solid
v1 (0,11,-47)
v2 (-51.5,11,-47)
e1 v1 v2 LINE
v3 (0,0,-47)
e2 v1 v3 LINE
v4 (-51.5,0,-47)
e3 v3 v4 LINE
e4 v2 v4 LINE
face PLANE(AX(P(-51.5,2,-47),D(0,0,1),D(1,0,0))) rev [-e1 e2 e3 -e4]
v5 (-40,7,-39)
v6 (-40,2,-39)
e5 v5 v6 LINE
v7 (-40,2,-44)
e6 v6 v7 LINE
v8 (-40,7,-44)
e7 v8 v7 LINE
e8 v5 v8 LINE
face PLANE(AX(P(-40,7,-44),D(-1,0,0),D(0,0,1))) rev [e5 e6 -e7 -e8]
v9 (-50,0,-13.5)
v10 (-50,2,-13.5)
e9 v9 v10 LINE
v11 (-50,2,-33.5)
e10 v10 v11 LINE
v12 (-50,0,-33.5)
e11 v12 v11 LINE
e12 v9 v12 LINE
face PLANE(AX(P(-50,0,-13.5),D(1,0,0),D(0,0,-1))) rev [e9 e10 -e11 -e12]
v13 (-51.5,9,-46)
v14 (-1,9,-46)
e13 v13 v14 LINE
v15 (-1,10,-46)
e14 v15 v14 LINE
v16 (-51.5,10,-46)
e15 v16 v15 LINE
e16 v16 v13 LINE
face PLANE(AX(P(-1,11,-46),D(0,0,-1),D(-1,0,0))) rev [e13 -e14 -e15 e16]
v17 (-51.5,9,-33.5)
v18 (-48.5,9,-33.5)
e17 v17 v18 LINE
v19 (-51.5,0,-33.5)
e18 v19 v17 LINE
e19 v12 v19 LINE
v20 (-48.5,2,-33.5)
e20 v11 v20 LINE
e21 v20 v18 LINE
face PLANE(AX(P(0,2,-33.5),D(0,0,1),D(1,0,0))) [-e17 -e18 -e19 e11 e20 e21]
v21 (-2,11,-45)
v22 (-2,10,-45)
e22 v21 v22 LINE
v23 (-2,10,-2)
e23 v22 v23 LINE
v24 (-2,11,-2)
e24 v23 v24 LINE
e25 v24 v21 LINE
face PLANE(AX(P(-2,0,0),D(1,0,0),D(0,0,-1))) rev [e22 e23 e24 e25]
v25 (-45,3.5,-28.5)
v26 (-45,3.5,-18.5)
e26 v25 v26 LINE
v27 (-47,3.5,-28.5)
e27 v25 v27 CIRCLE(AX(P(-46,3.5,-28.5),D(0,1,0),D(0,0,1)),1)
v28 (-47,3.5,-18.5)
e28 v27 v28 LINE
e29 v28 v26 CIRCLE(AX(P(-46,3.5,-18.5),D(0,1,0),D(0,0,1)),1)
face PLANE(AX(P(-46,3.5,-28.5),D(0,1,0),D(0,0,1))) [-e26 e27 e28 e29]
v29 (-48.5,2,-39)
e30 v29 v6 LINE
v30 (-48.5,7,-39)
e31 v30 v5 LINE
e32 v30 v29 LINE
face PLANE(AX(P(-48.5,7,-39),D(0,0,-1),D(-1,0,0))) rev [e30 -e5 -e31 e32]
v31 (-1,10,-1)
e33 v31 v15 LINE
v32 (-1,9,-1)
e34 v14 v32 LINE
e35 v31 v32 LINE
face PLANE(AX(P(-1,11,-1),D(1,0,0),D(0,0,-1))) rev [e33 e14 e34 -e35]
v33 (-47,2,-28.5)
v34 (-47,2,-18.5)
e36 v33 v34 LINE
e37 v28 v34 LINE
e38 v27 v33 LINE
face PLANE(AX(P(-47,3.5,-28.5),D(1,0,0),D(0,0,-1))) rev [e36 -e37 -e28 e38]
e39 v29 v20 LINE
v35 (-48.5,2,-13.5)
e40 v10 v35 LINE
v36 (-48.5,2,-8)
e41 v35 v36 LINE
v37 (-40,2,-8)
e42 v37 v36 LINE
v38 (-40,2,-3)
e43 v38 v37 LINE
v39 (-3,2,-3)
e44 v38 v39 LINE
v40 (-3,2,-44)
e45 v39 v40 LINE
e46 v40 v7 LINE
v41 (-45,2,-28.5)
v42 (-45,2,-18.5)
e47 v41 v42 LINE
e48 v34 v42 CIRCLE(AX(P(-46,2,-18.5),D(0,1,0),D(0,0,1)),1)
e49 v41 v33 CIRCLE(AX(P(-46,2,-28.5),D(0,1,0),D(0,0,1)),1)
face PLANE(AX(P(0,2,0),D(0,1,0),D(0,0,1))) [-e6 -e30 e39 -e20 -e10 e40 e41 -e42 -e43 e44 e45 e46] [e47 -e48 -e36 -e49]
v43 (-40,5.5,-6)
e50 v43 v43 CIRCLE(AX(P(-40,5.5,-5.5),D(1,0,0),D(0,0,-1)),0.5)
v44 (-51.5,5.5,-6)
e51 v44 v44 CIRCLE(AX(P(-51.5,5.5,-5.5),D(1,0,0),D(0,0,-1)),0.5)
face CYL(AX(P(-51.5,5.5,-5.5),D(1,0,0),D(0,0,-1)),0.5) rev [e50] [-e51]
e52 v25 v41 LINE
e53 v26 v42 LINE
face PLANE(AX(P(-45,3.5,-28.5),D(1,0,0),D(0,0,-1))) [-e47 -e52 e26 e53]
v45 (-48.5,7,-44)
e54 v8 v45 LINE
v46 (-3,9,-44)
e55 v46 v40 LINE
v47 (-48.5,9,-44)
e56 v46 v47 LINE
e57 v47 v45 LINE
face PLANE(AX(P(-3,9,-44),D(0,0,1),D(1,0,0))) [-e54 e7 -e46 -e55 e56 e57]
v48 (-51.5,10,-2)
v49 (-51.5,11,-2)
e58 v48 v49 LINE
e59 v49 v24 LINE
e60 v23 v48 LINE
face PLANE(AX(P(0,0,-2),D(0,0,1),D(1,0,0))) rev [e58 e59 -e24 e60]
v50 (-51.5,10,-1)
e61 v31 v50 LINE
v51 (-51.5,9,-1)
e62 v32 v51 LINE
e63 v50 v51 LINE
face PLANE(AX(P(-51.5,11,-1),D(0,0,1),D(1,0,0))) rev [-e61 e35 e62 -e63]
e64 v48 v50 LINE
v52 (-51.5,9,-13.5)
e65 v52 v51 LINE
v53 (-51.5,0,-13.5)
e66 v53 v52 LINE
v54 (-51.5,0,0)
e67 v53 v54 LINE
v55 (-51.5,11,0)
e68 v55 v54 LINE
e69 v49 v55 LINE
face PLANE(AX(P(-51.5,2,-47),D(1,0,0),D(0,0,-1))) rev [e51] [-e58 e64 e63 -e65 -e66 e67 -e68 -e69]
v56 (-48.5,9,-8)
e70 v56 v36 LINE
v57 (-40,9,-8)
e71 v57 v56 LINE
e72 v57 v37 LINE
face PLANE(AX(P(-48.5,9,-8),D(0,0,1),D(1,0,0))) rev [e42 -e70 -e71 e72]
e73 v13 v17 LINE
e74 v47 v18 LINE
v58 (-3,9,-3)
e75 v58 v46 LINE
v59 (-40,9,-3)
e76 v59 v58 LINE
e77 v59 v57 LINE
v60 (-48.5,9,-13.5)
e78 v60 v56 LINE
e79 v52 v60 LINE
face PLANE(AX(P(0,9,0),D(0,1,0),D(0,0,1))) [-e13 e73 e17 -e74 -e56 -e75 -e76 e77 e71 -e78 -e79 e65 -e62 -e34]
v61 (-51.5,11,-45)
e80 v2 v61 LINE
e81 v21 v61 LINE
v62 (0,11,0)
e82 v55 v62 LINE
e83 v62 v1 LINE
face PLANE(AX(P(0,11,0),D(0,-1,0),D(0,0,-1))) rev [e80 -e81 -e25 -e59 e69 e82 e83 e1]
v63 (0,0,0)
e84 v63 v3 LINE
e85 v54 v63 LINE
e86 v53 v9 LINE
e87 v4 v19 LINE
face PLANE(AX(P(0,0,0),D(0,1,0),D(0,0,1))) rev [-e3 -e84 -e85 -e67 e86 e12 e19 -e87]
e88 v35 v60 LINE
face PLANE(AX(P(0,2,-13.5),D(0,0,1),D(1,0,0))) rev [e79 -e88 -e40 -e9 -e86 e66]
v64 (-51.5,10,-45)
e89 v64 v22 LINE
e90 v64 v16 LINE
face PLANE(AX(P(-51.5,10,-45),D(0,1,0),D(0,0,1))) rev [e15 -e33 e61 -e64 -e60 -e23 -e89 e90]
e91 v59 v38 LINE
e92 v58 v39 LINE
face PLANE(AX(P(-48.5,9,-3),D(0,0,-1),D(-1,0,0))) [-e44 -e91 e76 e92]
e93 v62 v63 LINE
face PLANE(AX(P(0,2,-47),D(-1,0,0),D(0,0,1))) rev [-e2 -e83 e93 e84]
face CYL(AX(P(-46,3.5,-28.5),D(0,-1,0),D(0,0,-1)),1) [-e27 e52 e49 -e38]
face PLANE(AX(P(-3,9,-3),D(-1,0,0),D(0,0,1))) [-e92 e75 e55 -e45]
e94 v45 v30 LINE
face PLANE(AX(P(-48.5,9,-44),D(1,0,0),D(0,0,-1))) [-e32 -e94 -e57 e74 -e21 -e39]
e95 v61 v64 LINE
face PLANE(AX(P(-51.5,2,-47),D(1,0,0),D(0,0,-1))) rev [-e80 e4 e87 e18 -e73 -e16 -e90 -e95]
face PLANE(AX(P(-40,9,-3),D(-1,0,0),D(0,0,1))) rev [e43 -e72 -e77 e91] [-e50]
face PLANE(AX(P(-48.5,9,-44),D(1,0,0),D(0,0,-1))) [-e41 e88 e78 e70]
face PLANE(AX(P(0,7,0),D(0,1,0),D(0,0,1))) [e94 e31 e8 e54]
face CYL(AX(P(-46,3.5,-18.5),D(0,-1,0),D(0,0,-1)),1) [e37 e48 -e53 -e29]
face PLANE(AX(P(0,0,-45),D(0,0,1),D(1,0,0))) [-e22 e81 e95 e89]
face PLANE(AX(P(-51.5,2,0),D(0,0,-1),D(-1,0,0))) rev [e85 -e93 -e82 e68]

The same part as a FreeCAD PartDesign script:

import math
import FreeCAD as App
import Part
import Sketcher
Q = App.Units.Quantity


def add_polygon(sketch, points):
    """Adds a closed chain of lines whose ends are joined by coincident constraints."""
    first, n = sketch.GeometryCount, len(points)
    for a, b in zip(points, points[1:] + points[:1]):
        sketch.addGeometry(Part.LineSegment(App.Vector(*a, 0), App.Vector(*b, 0)), False)
    for i in range(n):
        sketch.addConstraint(Sketcher.Constraint("Coincident", first + i, 2, first + (i + 1) % n, 1))

doc = App.newDocument("Part")
body = doc.addObject("PartDesign::Body", "Body")

sketch1 = body.newObject("Sketcher::SketchObject", "Sketch")
sketch1.AttachmentSupport = (doc.getObject("XZ_Plane"), [""])
sketch1.MapMode = "FlatFace"
add_polygon(sketch1, [(-51.5, -47), (-51.5, 0), (0, 0), (0, -47)])
sketch1.addConstraint([
    Sketcher.Constraint("Vertical", 0),
    Sketcher.Constraint("Horizontal", 1),
    Sketcher.Constraint("Vertical", 2),
    Sketcher.Constraint("Horizontal", 3),
    Sketcher.Constraint("Coincident", 1, 2, -1, 1),
    Sketcher.Constraint("DistanceY", 0, 1, 0, 2, Q("47 mm")),
    Sketcher.Constraint("DistanceX", 1, 1, 1, 2, Q("51.5 mm")),
])
pad1 = body.newObject("PartDesign::Pad", "Pad")
pad1.Profile = sketch1
pad1.Length = 2
pad1.Reversed = True

sketch2 = body.newObject("Sketcher::SketchObject", "Sketch001")
sketch2.AttachmentSupport = (doc.getObject("XZ_Plane"), [""])
sketch2.MapMode = "FlatFace"
sketch2.AttachmentOffset = App.Placement(App.Vector(0, 0, -2), App.Rotation())
sketch2.addGeometry([
    Part.LineSegment(App.Vector(-45, -18.5, 0), App.Vector(-45, -28.5, 0)),
    Part.ArcOfCircle(Part.Circle(App.Vector(-46, -28.5, 0), App.Vector(0, 0, 1), 1), math.radians(180), math.radians(360)),
    Part.LineSegment(App.Vector(-47, -28.5, 0), App.Vector(-47, -18.5, 0)),
    Part.ArcOfCircle(Part.Circle(App.Vector(-46, -18.5, 0), App.Vector(0, 0, 1), 1), math.radians(0), math.radians(180)),
], False)
sketch2.addConstraint([
    Sketcher.Constraint("Tangent", 0, 2, 1, 2),
    Sketcher.Constraint("Tangent", 1, 1, 2, 1),
    Sketcher.Constraint("Tangent", 2, 2, 3, 2),
    Sketcher.Constraint("Tangent", 3, 1, 0, 1),
    Sketcher.Constraint("Vertical", 0),
    Sketcher.Constraint("Vertical", 2),
    Sketcher.Constraint("Radius", 1, Q("1 mm")),
    Sketcher.Constraint("DistanceY", 0, 2, 0, 1, Q("10 mm")),
    Sketcher.Constraint("DistanceX", 1, 3, -1, 1, Q("46 mm")),
    Sketcher.Constraint("DistanceY", 1, 3, -1, 1, Q("28.5 mm")),
])
pad2 = body.newObject("PartDesign::Pad", "Pad001")
pad2.Profile = sketch2
pad2.Length = 1.5
pad2.Reversed = True

sketch3 = body.newObject("Sketcher::SketchObject", "Sketch002")
sketch3.AttachmentSupport = (doc.getObject("XZ_Plane"), [""])
sketch3.MapMode = "FlatFace"
sketch3.AttachmentOffset = App.Placement(App.Vector(0, 0, -2), App.Rotation())
add_polygon(sketch3, [(-51.5, -47), (-51.5, 0), (0, 0), (0, -47)])
add_polygon(sketch3, [(-3, -3), (-48.5, -3), (-48.5, -44), (-3, -44)])
sketch3.addConstraint([
    Sketcher.Constraint("Vertical", 0),
    Sketcher.Constraint("Horizontal", 1),
    Sketcher.Constraint("Vertical", 2),
    Sketcher.Constraint("Horizontal", 3),
    Sketcher.Constraint("Horizontal", 4),
    Sketcher.Constraint("Vertical", 5),
    Sketcher.Constraint("Horizontal", 6),
    Sketcher.Constraint("Vertical", 7),
    Sketcher.Constraint("Coincident", 1, 2, -1, 1),
    Sketcher.Constraint("DistanceY", 0, 1, 0, 2, Q("47 mm")),
    Sketcher.Constraint("DistanceY", 5, 2, 5, 1, Q("41 mm")),
    Sketcher.Constraint("DistanceX", 1, 1, 1, 2, Q("51.5 mm")),
    Sketcher.Constraint("DistanceX", 4, 2, 4, 1, Q("45.5 mm")),
    Sketcher.Constraint("DistanceY", 4, 2, -1, 1, Q("3 mm")),
    Sketcher.Constraint("DistanceX", 6, 2, -1, 1, Q("3 mm")),
])
pad3 = body.newObject("PartDesign::Pad", "Pad002")
pad3.Profile = sketch3
pad3.Length = 7
pad3.Reversed = True

sketch4 = body.newObject("Sketcher::SketchObject", "Sketch003")
sketch4.AttachmentSupport = (doc.getObject("XZ_Plane"), [""])
sketch4.MapMode = "FlatFace"
sketch4.AttachmentOffset = App.Placement(App.Vector(0, 0, -9), App.Rotation())
add_polygon(sketch4, [(-51.5, -33.5), (-51.5, -13.5), (-48.5, -13.5), (-48.5, -33.5)])
sketch4.addConstraint([
    Sketcher.Constraint("Vertical", 0),
    Sketcher.Constraint("Horizontal", 1),
    Sketcher.Constraint("Vertical", 2),
    Sketcher.Constraint("Horizontal", 3),
    Sketcher.Constraint("DistanceX", 1, 1, 1, 2, Q("3 mm")),
    Sketcher.Constraint("DistanceY", 0, 1, 0, 2, Q("20 mm")),
    Sketcher.Constraint("DistanceX", 0, 2, -1, 1, Q("51.5 mm")),
    Sketcher.Constraint("DistanceY", 0, 2, -1, 1, Q("13.5 mm")),
])
pocket1 = body.newObject("PartDesign::Pocket", "Pocket")
pocket1.Profile = sketch4
pocket1.Length = 7
pocket1.Reversed = True

sketch5 = body.newObject("Sketcher::SketchObject", "Sketch004")
sketch5.AttachmentSupport = (doc.getObject("XZ_Plane"), [""])
sketch5.MapMode = "FlatFace"
sketch5.AttachmentOffset = App.Placement(App.Vector(0, 0, -2), App.Rotation())
add_polygon(sketch5, [(-48.5, -8), (-48.5, -3), (-40, -3), (-40, -8)])
sketch5.addConstraint([
    Sketcher.Constraint("Vertical", 0),
    Sketcher.Constraint("Horizontal", 1),
    Sketcher.Constraint("Vertical", 2),
    Sketcher.Constraint("Horizontal", 3),
    Sketcher.Constraint("DistanceY", 0, 1, 0, 2, Q("5 mm")),
    Sketcher.Constraint("DistanceX", 1, 1, 1, 2, Q("8.5 mm")),
    Sketcher.Constraint("DistanceY", 0, 2, -1, 1, Q("3 mm")),
    Sketcher.Constraint("DistanceX", 1, 2, -1, 1, Q("40 mm")),
])
pad4 = body.newObject("PartDesign::Pad", "Pad003")
pad4.Profile = sketch5
pad4.Length = 7
pad4.Reversed = True

sketch6 = body.newObject("Sketcher::SketchObject", "Sketch005")
sketch6.AttachmentSupport = (doc.getObject("YZ_Plane"), [""])
sketch6.MapMode = "FlatFace"
sketch6.AttachmentOffset = App.Placement(App.Vector(0, 0, -40), App.Rotation())
sketch6.addGeometry(Part.Circle(App.Vector(5.5, -5.5, 0), App.Vector(0, 0, 1), 0.5), False)
sketch6.addConstraint([
    Sketcher.Constraint("Diameter", 0, Q("1 mm")),
    Sketcher.Constraint("DistanceX", -1, 1, 0, 3, Q("5.5 mm")),
    Sketcher.Constraint("DistanceY", 0, 3, -1, 1, Q("5.5 mm")),
])
pocket2 = body.newObject("PartDesign::Pocket", "Pocket001")
pocket2.Profile = sketch6
pocket2.Type = "ThroughAll"

sketch7 = body.newObject("Sketcher::SketchObject", "Sketch006")
sketch7.AttachmentSupport = (doc.getObject("XZ_Plane"), [""])
sketch7.MapMode = "FlatFace"
sketch7.AttachmentOffset = App.Placement(App.Vector(0, 0, -2), App.Rotation())
add_polygon(sketch7, [(-48.5, -44), (-48.5, -39), (-40, -39), (-40, -44)])
sketch7.addConstraint([
    Sketcher.Constraint("Vertical", 0),
    Sketcher.Constraint("Horizontal", 1),
    Sketcher.Constraint("Vertical", 2),
    Sketcher.Constraint("Horizontal", 3),
    Sketcher.Constraint("DistanceY", 0, 1, 0, 2, Q("5 mm")),
    Sketcher.Constraint("DistanceX", 1, 1, 1, 2, Q("8.5 mm")),
    Sketcher.Constraint("DistanceY", 0, 2, -1, 1, Q("39 mm")),
    Sketcher.Constraint("DistanceX", 1, 2, -1, 1, Q("40 mm")),
])
pad5 = body.newObject("PartDesign::Pad", "Pad004")
pad5.Profile = sketch7
pad5.Length = 5
pad5.Reversed = True

sketch8 = body.newObject("Sketcher::SketchObject", "Sketch007")
sketch8.AttachmentSupport = (doc.getObject("XZ_Plane"), [""])
sketch8.MapMode = "FlatFace"
sketch8.AttachmentOffset = App.Placement(App.Vector(0, 0, -9), App.Rotation())
add_polygon(sketch8, [(-1, -1), (-51.5, -1), (-51.5, 0), (0, 0), (0, -47), (-51.5, -47), (-51.5, -46), (-1, -46)])
sketch8.addConstraint([
    Sketcher.Constraint("Horizontal", 0),
    Sketcher.Constraint("Vertical", 1),
    Sketcher.Constraint("Horizontal", 2),
    Sketcher.Constraint("Vertical", 3),
    Sketcher.Constraint("Horizontal", 4),
    Sketcher.Constraint("Vertical", 5),
    Sketcher.Constraint("Horizontal", 6),
    Sketcher.Constraint("Vertical", 7),
    Sketcher.Constraint("Coincident", 2, 2, -1, 1),
    Sketcher.Constraint("Vertical", 1, 2, 4, 2),
    Sketcher.Constraint("Equal", 1, 5),
    Sketcher.Constraint("DistanceY", 1, 1, 1, 2, Q("1 mm")),
    Sketcher.Constraint("DistanceY", 3, 2, 3, 1, Q("47 mm")),
    Sketcher.Constraint("DistanceX", 0, 2, 0, 1, Q("50.5 mm")),
    Sketcher.Constraint("DistanceX", 2, 1, 2, 2, Q("51.5 mm")),
])
pad6 = body.newObject("PartDesign::Pad", "Pad005")
pad6.Profile = sketch8
pad6.Length = 2
pad6.Reversed = True

sketch9 = body.newObject("Sketcher::SketchObject", "Sketch008")
sketch9.AttachmentSupport = (doc.getObject("XY_Plane"), [""])
sketch9.MapMode = "FlatFace"
sketch9.AttachmentOffset = App.Placement(App.Vector(0, 0, -46), App.Rotation())
add_polygon(sketch9, [(-51.5, 11), (-51.5, 10), (-1, 10), (-1, 11)])
sketch9.addConstraint([
    Sketcher.Constraint("Vertical", 0),
    Sketcher.Constraint("Horizontal", 1),
    Sketcher.Constraint("Vertical", 2),
    Sketcher.Constraint("Horizontal", 3),
    Sketcher.Constraint("DistanceY", 0, 2, 0, 1, Q("1 mm")),
    Sketcher.Constraint("DistanceX", 1, 1, 1, 2, Q("50.5 mm")),
    Sketcher.Constraint("DistanceY", -1, 1, 0, 2, Q("10 mm")),
    Sketcher.Constraint("DistanceX", 1, 2, -1, 1, Q("1 mm")),
])
pad7 = body.newObject("PartDesign::Pad", "Pad006")
pad7.Profile = sketch9
pad7.Length = 1

sketch10 = body.newObject("Sketcher::SketchObject", "Sketch009")
sketch10.AttachmentSupport = (doc.getObject("XY_Plane"), [""])
sketch10.MapMode = "FlatFace"
sketch10.AttachmentOffset = App.Placement(App.Vector(0, 0, -1), App.Rotation())
add_polygon(sketch10, [(-1, 11), (-1, 10), (-51.5, 10), (-51.5, 11)])
sketch10.addConstraint([
    Sketcher.Constraint("Vertical", 0),
    Sketcher.Constraint("Horizontal", 1),
    Sketcher.Constraint("Vertical", 2),
    Sketcher.Constraint("Horizontal", 3),
    Sketcher.Constraint("DistanceY", 0, 2, 0, 1, Q("1 mm")),
    Sketcher.Constraint("DistanceX", 1, 2, 1, 1, Q("50.5 mm")),
    Sketcher.Constraint("DistanceX", 0, 2, -1, 1, Q("1 mm")),
    Sketcher.Constraint("DistanceY", -1, 1, 0, 2, Q("10 mm")),
])
pad8 = body.newObject("PartDesign::Pad", "Pad007")
pad8.Profile = sketch10
pad8.Length = 1
pad8.Reversed = True

sketch11 = body.newObject("Sketcher::SketchObject", "Sketch010")
sketch11.AttachmentSupport = (doc.getObject("YZ_Plane"), [""])
sketch11.MapMode = "FlatFace"
sketch11.AttachmentOffset = App.Placement(App.Vector(0, 0, -1), App.Rotation())
add_polygon(sketch11, [(11, -45), (10, -45), (10, -2), (11, -2)])
sketch11.addConstraint([
    Sketcher.Constraint("Horizontal", 0),
    Sketcher.Constraint("Vertical", 1),
    Sketcher.Constraint("Horizontal", 2),
    Sketcher.Constraint("Vertical", 3),
    Sketcher.Constraint("DistanceX", 0, 2, 0, 1, Q("1 mm")),
    Sketcher.Constraint("DistanceY", 1, 1, 1, 2, Q("43 mm")),
    Sketcher.Constraint("DistanceX", -1, 1, 0, 2, Q("10 mm")),
    Sketcher.Constraint("DistanceY", 0, 2, -1, 1, Q("45 mm")),
])
pad9 = body.newObject("PartDesign::Pad", "Pad008")
pad9.Profile = sketch11
pad9.Length = 1
pad9.Reversed = True

sketch12 = body.newObject("Sketcher::SketchObject", "Sketch011")
sketch12.AttachmentSupport = (doc.getObject("XZ_Plane"), [""])
sketch12.MapMode = "FlatFace"
sketch12.AttachmentOffset = App.Placement(App.Vector(0, 0, -2), App.Rotation())
add_polygon(sketch12, [(-51.5, -33.5), (-51.5, -13.5), (-50, -13.5), (-50, -33.5)])
sketch12.addConstraint([
    Sketcher.Constraint("Vertical", 0),
    Sketcher.Constraint("Horizontal", 1),
    Sketcher.Constraint("Vertical", 2),
    Sketcher.Constraint("Horizontal", 3),
    Sketcher.Constraint("DistanceY", 0, 1, 0, 2, Q("20 mm")),
    Sketcher.Constraint("DistanceX", 1, 1, 1, 2, Q("1.5 mm")),
    Sketcher.Constraint("DistanceX", 1, 2, -1, 1, Q("50 mm")),
    Sketcher.Constraint("DistanceY", 0, 2, -1, 1, Q("13.5 mm")),
])
pocket3 = body.newObject("PartDesign::Pocket", "Pocket002")
pocket3.Profile = sketch12
pocket3.Type = "ThroughAll"
pocket3.Reversed = True

doc.recompute()
